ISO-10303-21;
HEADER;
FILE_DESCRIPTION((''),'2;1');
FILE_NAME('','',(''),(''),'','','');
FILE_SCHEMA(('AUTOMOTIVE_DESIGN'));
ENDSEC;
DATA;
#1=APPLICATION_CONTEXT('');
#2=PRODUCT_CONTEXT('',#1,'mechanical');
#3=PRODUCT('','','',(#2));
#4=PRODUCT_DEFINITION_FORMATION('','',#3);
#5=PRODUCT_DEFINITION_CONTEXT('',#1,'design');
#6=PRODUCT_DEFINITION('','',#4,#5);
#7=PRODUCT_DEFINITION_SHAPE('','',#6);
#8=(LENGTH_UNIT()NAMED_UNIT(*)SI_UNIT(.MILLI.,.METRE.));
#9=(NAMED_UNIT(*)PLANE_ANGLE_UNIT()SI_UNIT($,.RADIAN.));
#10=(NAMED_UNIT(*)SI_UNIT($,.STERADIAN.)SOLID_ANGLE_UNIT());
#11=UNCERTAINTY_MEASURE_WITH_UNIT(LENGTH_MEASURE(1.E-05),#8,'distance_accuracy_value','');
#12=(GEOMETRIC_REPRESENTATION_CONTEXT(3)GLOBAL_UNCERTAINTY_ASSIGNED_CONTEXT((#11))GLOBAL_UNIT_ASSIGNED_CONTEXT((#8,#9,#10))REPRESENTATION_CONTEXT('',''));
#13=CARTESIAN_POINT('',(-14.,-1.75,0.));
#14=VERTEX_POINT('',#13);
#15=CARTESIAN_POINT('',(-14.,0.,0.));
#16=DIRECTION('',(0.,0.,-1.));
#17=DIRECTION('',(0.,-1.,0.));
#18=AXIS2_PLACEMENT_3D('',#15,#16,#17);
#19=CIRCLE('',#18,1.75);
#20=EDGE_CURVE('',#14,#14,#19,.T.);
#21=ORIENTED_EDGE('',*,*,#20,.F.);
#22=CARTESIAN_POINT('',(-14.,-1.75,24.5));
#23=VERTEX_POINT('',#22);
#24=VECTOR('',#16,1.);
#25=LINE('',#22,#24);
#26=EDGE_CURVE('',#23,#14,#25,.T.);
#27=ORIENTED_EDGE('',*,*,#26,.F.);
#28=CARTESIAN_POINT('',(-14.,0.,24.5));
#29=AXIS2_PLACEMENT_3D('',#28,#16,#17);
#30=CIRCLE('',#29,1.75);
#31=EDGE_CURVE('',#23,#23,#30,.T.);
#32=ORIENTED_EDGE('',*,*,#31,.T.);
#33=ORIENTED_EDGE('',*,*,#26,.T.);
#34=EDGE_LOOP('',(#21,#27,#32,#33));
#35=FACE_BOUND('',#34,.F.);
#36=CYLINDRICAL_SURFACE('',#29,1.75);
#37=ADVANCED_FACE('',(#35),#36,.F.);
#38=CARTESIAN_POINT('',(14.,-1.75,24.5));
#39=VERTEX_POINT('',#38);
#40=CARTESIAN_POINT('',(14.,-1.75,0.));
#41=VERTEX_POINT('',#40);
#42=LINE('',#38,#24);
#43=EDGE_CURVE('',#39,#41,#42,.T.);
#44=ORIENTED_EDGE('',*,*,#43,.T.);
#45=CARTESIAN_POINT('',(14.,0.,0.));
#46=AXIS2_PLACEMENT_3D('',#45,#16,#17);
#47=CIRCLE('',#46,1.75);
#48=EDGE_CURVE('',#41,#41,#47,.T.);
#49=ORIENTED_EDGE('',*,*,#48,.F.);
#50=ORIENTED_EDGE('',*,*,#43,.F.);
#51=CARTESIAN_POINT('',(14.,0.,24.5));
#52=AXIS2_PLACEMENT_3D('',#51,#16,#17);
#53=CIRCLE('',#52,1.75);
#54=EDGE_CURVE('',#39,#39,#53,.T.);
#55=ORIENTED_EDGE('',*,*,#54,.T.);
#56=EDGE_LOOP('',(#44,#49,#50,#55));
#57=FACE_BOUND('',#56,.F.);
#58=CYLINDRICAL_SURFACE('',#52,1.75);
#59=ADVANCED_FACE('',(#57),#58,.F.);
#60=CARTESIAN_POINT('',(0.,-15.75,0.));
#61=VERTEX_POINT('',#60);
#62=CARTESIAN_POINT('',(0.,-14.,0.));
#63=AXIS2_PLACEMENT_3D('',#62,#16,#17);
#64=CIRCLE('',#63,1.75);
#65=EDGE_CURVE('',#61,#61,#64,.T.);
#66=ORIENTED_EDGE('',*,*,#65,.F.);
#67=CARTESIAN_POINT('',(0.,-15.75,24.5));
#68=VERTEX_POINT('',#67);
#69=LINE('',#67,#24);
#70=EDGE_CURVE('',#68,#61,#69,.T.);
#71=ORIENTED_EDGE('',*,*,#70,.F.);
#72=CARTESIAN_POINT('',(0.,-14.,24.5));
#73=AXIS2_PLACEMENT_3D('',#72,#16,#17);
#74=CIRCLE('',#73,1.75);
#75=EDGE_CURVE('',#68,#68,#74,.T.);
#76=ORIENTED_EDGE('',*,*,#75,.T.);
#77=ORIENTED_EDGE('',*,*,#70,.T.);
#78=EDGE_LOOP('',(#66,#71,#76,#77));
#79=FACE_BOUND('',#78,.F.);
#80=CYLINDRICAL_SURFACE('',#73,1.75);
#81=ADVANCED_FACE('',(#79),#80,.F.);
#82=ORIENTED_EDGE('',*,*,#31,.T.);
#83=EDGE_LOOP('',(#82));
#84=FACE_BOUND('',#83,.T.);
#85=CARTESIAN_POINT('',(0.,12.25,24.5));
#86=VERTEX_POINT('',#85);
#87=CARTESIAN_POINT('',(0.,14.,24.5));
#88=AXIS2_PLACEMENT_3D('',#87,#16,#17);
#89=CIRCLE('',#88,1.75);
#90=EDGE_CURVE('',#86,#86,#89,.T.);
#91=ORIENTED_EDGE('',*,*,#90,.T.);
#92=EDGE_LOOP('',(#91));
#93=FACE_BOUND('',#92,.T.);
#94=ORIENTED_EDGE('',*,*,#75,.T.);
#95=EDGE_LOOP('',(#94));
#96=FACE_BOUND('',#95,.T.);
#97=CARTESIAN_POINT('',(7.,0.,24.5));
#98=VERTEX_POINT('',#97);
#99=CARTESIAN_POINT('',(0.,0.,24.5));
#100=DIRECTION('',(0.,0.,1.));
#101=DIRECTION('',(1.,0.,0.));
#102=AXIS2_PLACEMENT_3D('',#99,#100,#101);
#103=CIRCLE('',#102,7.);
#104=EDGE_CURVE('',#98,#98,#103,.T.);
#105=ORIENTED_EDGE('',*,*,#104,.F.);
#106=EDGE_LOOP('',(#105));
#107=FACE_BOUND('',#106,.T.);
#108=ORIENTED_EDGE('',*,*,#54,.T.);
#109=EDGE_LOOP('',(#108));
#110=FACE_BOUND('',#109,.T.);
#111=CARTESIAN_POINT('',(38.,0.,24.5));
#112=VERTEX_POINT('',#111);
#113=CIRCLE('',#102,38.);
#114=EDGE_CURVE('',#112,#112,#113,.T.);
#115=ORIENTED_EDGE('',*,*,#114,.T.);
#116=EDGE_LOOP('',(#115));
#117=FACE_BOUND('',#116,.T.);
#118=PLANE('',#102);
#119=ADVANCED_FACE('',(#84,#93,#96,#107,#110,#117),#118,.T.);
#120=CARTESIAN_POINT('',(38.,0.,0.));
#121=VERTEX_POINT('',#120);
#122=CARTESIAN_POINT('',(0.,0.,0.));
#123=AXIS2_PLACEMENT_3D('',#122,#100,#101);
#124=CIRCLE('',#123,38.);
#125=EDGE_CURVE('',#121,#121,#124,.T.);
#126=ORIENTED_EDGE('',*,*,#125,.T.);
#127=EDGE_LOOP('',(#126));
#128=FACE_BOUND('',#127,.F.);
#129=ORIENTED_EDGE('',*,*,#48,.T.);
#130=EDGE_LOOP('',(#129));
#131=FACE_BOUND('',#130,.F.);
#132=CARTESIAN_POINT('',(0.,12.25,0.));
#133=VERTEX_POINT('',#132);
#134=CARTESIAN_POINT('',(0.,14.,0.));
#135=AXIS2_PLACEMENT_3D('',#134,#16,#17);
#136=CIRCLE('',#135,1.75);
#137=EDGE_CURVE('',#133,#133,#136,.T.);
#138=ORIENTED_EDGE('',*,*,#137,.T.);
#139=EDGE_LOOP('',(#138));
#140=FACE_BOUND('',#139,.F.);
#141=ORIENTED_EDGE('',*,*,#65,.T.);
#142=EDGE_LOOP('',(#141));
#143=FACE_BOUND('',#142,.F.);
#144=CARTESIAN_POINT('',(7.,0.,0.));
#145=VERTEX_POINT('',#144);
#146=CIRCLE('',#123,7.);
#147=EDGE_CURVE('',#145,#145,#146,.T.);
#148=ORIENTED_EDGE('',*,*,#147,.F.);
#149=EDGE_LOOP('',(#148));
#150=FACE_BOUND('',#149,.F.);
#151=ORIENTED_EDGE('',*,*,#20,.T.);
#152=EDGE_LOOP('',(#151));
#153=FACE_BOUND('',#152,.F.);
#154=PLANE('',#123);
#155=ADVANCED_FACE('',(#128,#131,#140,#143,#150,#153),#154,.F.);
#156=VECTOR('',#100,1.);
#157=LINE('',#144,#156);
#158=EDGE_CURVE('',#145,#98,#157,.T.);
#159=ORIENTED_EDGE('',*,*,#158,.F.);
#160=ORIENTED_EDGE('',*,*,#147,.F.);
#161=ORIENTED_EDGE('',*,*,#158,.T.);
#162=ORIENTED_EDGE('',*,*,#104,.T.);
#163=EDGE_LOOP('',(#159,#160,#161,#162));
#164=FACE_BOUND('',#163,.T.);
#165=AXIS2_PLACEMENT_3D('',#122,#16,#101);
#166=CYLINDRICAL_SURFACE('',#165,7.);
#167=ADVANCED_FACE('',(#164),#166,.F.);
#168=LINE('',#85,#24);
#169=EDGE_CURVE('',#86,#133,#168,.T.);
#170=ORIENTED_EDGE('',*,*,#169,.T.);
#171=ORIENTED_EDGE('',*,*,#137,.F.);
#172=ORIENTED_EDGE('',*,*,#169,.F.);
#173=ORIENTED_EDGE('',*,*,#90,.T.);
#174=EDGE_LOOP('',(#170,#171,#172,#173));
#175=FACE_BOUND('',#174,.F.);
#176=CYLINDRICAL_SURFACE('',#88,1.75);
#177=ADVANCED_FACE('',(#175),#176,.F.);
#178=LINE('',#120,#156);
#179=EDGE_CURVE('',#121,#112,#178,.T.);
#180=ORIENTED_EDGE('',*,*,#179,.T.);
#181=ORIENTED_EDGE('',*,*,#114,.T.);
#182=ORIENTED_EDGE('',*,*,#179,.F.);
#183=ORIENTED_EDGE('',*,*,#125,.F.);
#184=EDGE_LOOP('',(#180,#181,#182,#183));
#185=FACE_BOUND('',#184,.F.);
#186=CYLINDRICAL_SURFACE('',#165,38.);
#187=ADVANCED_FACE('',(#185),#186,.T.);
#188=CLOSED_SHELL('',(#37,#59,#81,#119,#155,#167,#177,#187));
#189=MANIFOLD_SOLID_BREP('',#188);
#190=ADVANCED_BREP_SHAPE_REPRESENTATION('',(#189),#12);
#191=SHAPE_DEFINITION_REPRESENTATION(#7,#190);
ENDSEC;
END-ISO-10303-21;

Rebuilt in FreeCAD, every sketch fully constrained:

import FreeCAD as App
import Part
import Sketcher
from FreeCAD import Vector

doc = App.newDocument("Part")
body = doc.addObject("PartDesign::Body", "Body")

sketch1 = body.newObject("Sketcher::SketchObject", "Sketch")
sketch1.AttachmentSupport = (doc.getObject("XY_Plane"), [""])
sketch1.MapMode = "FlatFace"
sketch1.addGeometry(Part.Circle(Vector(0, 0, 0), Vector(0, 0, 1), 38), False)
sketch1.addGeometry(Part.Circle(Vector(0, 0, 0), Vector(0, 0, 1), 7), False)
sketch1.addConstraint(Sketcher.Constraint("Coincident", 0, 3, -1, 1))
sketch1.addConstraint(Sketcher.Constraint("Coincident", 1, 3, -1, 1))
sketch1.addConstraint(Sketcher.Constraint("Diameter", 0, 76.0))
sketch1.addConstraint(Sketcher.Constraint("Diameter", 1, 14.0))
pad1 = body.newObject("PartDesign::Pad", "Pad")
pad1.Profile = sketch1
pad1.Length = 24.5

sketch2 = body.newObject("Sketcher::SketchObject", "Sketch001")
sketch2.AttachmentSupport = (doc.getObject("XY_Plane"), [""])
sketch2.MapMode = "FlatFace"
sketch2.AttachmentOffset = App.Placement(Vector(0, 0, 24.5), App.Rotation())
sketch2.addGeometry(Part.Circle(Vector(0, 14, 0), Vector(0, 0, 1), 1.8), False)
sketch2.addGeometry(Part.Circle(Vector(-14, 0, 0), Vector(0, 0, 1), 1.8), False)
sketch2.addGeometry(Part.Circle(Vector(0, -14, 0), Vector(0, 0, 1), 1.8), False)
sketch2.addGeometry(Part.Circle(Vector(14, 0, 0), Vector(0, 0, 1), 1.8), False)
sketch2.addConstraint(Sketcher.Constraint("Equal", 0, 1))
sketch2.addConstraint(Sketcher.Constraint("Equal", 1, 2))
sketch2.addConstraint(Sketcher.Constraint("Equal", 2, 3))
sketch2.addConstraint(Sketcher.Constraint("Symmetric", 0, 3, 2, 3, -1, 1))
sketch2.addConstraint(Sketcher.Constraint("Symmetric", 1, 3, 3, 3, -1, 1))
sketch2.addConstraint(Sketcher.Constraint("PointOnObject", 0, 3, -2))
sketch2.addConstraint(Sketcher.Constraint("PointOnObject", 1, 3, -1))
sketch2.addConstraint(Sketcher.Constraint("Diameter", 0, 3.5))
sketch2.addConstraint(Sketcher.Constraint("DistanceY", -1, 1, 0, 3, 14.0))
sketch2.addConstraint(Sketcher.Constraint("DistanceX", 1, 3, -1, 1, 14.0))
doc.recompute()
hole = body.newObject("PartDesign::Hole", "Hole")
hole.Profile = sketch2
hole.ThreadType = "None"
hole.Diameter = 3.5
hole.DepthType = "ThroughAll"

doc.recompute()
